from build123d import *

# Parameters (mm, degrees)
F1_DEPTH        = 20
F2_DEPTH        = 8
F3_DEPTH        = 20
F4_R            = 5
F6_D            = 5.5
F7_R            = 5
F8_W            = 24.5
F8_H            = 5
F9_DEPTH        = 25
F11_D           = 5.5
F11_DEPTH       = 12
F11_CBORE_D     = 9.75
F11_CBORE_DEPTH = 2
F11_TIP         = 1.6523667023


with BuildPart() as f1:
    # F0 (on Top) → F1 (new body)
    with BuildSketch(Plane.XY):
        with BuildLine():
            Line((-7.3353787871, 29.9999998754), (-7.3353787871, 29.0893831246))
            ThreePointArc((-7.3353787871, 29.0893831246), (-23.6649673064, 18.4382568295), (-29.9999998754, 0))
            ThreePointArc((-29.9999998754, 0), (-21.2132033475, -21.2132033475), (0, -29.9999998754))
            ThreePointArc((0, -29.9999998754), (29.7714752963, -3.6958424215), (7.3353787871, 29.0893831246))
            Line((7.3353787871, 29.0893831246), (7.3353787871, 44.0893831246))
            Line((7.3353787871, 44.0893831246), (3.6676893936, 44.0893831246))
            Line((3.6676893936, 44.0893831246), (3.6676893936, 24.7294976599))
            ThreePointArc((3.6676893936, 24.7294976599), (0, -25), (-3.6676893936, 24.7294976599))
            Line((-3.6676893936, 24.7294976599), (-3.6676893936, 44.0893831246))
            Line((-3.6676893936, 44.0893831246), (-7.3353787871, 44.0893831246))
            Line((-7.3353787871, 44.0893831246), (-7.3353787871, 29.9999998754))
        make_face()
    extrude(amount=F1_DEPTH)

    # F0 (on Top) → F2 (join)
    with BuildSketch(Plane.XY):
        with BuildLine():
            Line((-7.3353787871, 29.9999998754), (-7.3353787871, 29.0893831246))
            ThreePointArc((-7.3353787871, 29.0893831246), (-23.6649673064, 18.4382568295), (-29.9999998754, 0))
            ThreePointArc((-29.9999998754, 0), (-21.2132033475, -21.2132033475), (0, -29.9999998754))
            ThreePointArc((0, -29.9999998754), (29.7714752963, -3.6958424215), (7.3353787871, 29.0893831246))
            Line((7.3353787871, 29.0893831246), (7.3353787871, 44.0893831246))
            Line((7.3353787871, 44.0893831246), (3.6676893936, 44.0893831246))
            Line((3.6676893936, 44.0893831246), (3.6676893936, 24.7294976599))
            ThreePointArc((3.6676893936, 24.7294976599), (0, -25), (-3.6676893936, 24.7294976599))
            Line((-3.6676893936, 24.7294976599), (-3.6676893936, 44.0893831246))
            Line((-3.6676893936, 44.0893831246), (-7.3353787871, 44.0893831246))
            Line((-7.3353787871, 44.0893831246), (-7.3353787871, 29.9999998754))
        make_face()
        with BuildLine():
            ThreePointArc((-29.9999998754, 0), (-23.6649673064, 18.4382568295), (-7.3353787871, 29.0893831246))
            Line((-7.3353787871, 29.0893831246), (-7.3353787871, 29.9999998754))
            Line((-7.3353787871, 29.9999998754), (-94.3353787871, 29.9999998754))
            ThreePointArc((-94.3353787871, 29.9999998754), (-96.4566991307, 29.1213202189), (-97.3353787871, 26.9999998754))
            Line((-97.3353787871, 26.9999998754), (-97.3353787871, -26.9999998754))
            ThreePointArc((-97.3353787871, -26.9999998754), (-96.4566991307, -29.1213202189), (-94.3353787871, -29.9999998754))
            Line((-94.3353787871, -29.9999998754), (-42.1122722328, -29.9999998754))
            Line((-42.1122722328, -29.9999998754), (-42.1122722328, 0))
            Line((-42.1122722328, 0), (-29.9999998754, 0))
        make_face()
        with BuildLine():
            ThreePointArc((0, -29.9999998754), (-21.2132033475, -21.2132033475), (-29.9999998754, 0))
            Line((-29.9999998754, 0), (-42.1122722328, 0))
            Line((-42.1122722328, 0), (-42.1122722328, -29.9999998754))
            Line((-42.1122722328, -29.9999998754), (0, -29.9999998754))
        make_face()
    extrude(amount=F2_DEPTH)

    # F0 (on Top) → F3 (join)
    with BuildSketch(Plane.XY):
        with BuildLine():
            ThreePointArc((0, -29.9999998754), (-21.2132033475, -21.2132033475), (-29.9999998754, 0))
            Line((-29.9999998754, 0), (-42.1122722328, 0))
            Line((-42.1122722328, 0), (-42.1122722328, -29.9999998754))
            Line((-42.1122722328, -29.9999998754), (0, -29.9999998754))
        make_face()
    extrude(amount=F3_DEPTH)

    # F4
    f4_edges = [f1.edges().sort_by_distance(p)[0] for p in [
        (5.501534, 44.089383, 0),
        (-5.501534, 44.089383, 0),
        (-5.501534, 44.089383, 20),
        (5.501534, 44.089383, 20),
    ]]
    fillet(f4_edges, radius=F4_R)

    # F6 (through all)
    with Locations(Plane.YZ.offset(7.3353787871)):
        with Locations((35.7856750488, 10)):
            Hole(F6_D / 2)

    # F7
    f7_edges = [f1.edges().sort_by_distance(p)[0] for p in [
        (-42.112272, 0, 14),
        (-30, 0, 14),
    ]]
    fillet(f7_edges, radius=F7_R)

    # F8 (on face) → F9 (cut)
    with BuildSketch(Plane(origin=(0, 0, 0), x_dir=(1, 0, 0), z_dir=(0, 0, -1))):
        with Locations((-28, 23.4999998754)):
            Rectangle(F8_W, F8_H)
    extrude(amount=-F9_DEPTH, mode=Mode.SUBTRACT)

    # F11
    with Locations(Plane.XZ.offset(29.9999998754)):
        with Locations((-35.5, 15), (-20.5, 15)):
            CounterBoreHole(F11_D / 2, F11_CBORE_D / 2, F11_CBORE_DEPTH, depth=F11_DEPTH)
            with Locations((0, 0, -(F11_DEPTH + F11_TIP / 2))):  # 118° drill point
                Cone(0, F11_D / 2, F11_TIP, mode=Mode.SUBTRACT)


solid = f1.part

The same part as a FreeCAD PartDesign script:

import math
import FreeCAD as App
import Part
import Sketcher


def edges_at(feature, points):
    """Names of the edges that pass closest to the given points."""
    edges = feature.Shape.Edges
    near = lambda p: min(range(len(edges)), key=lambda i: edges[i].distToShape(Part.Vertex(*p))[0])
    return sorted({f"Edge{near(p) + 1}" for p in points})

doc = App.newDocument("Part")
params = doc.addObject("Spreadsheet::Sheet", "Params")
for row, (alias, value) in enumerate([
    ("sketch1_radius", "30 mm"),
    ("sketch1_radius2", "25 mm"),
    ("sketch1_height", "15 mm"),
    ("pad1_length", "20 mm"),
    ("sketch2_radius", "30 mm"),
    ("sketch2_radius2", "25 mm"),
    ("sketch2_radius3", "3 mm"),
    ("sketch2_width", "87 mm"),
    ("sketch2_height", "15 mm"),
    ("pad2_length", "8 mm"),
    ("sketch3_radius", "30 mm"),
    ("pad3_length", "20 mm"),
    ("fillet_radius", "5 mm"),
    ("sketch4_diameter", "5.5 mm"),
    ("hole_diameter", "5.5 mm"),
    ("fillet2_radius", "5 mm"),
    ("sketch5_height", "5 mm"),
    ("sketch5_width", "24.5 mm"),
    ("pocket1_length", "25 mm"),
    ("sketch6_diameter", "5.5 mm"),
    ("hole2_diameter", "5.5 mm"),
    ("hole2_depth", "12 mm"),
    ("hole2_cbore_diameter", "9.75 mm"),
    ("hole2_cbore_depth", "2 mm"),
], start=1):
    params.set(f"A{row}", alias)
    params.set(f"B{row}", "=" + value)
    params.setAlias(f"B{row}", alias)

body = doc.addObject("PartDesign::Body", "Body")

# Sketch on XY plane
sketch1 = body.newObject("Sketcher::SketchObject", "Sketch")
sketch1.AttachmentSupport = (doc.getObject("XY_Plane"), [""])
sketch1.MapMode = "FlatFace"
sketch1.addGeometry([
    Part.ArcOfCircle(Part.Circle(App.Vector(0, 0, 0), App.Vector(0, 0, 1), 30), math.radians(104.153033), math.radians(180)),  # 0
    Part.ArcOfCircle(Part.Circle(App.Vector(0, 0, 0), App.Vector(0, 0, 1), 30), math.radians(180), math.radians(270)),  # 1
    Part.ArcOfCircle(Part.Circle(App.Vector(0, 0, 0), App.Vector(0, 0, 1), 30), math.radians(-90), math.radians(75.846967)),  # 2
    Part.LineSegment(App.Vector(7.335379, 29.089383, 0), App.Vector(7.335379, 44.089383, 0)),  # 3
    Part.LineSegment(App.Vector(7.335379, 44.089383, 0), App.Vector(3.667689, 44.089383, 0)),  # 4
    Part.LineSegment(App.Vector(3.667689, 44.089383, 0), App.Vector(3.667689, 24.729498, 0)),  # 5
    Part.ArcOfCircle(Part.Circle(App.Vector(0, 0, 0), App.Vector(0, 0, 1), 25), math.radians(98.436174), math.radians(441.563826)),  # 6
    Part.LineSegment(App.Vector(-3.667689, 24.729498, 0), App.Vector(-3.667689, 44.089383, 0)),  # 7
    Part.LineSegment(App.Vector(-3.667689, 44.089383, 0), App.Vector(-7.335379, 44.089383, 0)),  # 8
    Part.LineSegment(App.Vector(-7.335379, 44.089383, 0), App.Vector(-7.335379, 29.089383, 0)),  # 9
], False)
sketch1.addConstraint([
    Sketcher.Constraint("Tangent", 0, 2, 1, 1),
    Sketcher.Constraint("Tangent", 1, 2, 2, 1),
    Sketcher.Constraint("Coincident", 2, 2, 3, 1),
    Sketcher.Constraint("Coincident", 3, 2, 4, 1),
    Sketcher.Constraint("Coincident", 4, 2, 5, 1),
    Sketcher.Constraint("Coincident", 5, 2, 6, 2),
    Sketcher.Constraint("Coincident", 6, 1, 7, 1),
    Sketcher.Constraint("Coincident", 7, 2, 8, 1),
    Sketcher.Constraint("Coincident", 8, 2, 9, 1),
    Sketcher.Constraint("Coincident", 9, 2, 0, 1),
    Sketcher.Constraint("Vertical", 3),
    Sketcher.Constraint("Horizontal", 4),
    Sketcher.Constraint("Vertical", 5),
    Sketcher.Constraint("Vertical", 7),
    Sketcher.Constraint("Horizontal", 8),
    Sketcher.Constraint("Vertical", 9),
    Sketcher.Constraint("Coincident", 0, 3, -1, 1),
    Sketcher.Constraint("Coincident", 2, 3, -1, 1),
    Sketcher.Constraint("Coincident", 6, 3, -1, 1),
    Sketcher.Constraint("Symmetric", 4, 2, 7, 2, -2),
    Sketcher.Constraint("PointOnObject", 0, 2, -1),
    Sketcher.Constraint("PointOnObject", 1, 2, -2),
    Sketcher.Constraint("Horizontal", 2, 2, 9, 2),
    Sketcher.Constraint("Radius", 0, 30.0),
    Sketcher.Constraint("Radius", 6, 25.0),
    Sketcher.Constraint("DistanceY", 3, 1, 3, 2, 15.0),
    Sketcher.Constraint("DistanceX", 4, 2, 4, 1, 3.667689),
    Sketcher.Constraint("DistanceY", 5, 2, 5, 1, 19.359885),
])
sketch1.setExpression("Constraints[23]", "Params.sketch1_radius")
sketch1.setExpression("Constraints[24]", "Params.sketch1_radius2")
sketch1.setExpression("Constraints[25]", "Params.sketch1_height")
pad1 = body.newObject("PartDesign::Pad", "Pad")
pad1.Profile = sketch1
pad1.setExpression("Length", "Params.pad1_length")

# Sketch on XY plane
sketch2 = body.newObject("Sketcher::SketchObject", "Sketch001")
sketch2.AttachmentSupport = (doc.getObject("XY_Plane"), [""])
sketch2.MapMode = "FlatFace"
sketch2.addGeometry([
    Part.ArcOfCircle(Part.Circle(App.Vector(0, 0, 0), App.Vector(0, 0, 1), 30), math.radians(-90), math.radians(75.846967)),  # 0
    Part.LineSegment(App.Vector(7.335379, 29.089383, 0), App.Vector(7.335379, 44.089383, 0)),  # 1
    Part.LineSegment(App.Vector(7.335379, 44.089383, 0), App.Vector(3.667689, 44.089383, 0)),  # 2
    Part.LineSegment(App.Vector(3.667689, 44.089383, 0), App.Vector(3.667689, 24.729498, 0)),  # 3
    Part.ArcOfCircle(Part.Circle(App.Vector(0, 0, 0), App.Vector(0, 0, 1), 25), math.radians(98.436174), math.radians(441.563826)),  # 4
    Part.LineSegment(App.Vector(-3.667689, 24.729498, 0), App.Vector(-3.667689, 44.089383, 0)),  # 5
    Part.LineSegment(App.Vector(-3.667689, 44.089383, 0), App.Vector(-7.335379, 44.089383, 0)),  # 6
    Part.LineSegment(App.Vector(-7.335379, 44.089383, 0), App.Vector(-7.335379, 30, 0)),  # 7
    Part.LineSegment(App.Vector(-7.335379, 30, 0), App.Vector(-94.335379, 30, 0)),  # 8
    Part.ArcOfCircle(Part.Circle(App.Vector(-94.335379, 27, 0), App.Vector(0, 0, 1), 3), math.radians(90), math.radians(180)),  # 9
    Part.LineSegment(App.Vector(-97.335379, 27, 0), App.Vector(-97.335379, -27, 0)),  # 10
    Part.ArcOfCircle(Part.Circle(App.Vector(-94.335379, -27, 0), App.Vector(0, 0, 1), 3), math.radians(180), math.radians(270)),  # 11
    Part.LineSegment(App.Vector(-94.335379, -30, 0), App.Vector(0, -30, 0)),  # 12
], False)
sketch2.addConstraint([
    Sketcher.Constraint("Coincident", 0, 2, 1, 1),
    Sketcher.Constraint("Coincident", 1, 2, 2, 1),
    Sketcher.Constraint("Coincident", 2, 2, 3, 1),
    Sketcher.Constraint("Coincident", 3, 2, 4, 2),
    Sketcher.Constraint("Coincident", 4, 1, 5, 1),
    Sketcher.Constraint("Coincident", 5, 2, 6, 1),
    Sketcher.Constraint("Coincident", 6, 2, 7, 1),
    Sketcher.Constraint("Coincident", 7, 2, 8, 1),
    Sketcher.Constraint("Tangent", 8, 2, 9, 1),
    Sketcher.Constraint("Tangent", 9, 2, 10, 1),
    Sketcher.Constraint("Tangent", 10, 2, 11, 1),
    Sketcher.Constraint("Tangent", 11, 2, 12, 1),
    Sketcher.Constraint("Tangent", 12, 2, 0, 1),
    Sketcher.Constraint("Vertical", 1),
    Sketcher.Constraint("Horizontal", 2),
    Sketcher.Constraint("Vertical", 3),
    Sketcher.Constraint("Vertical", 5),
    Sketcher.Constraint("Horizontal", 6),
    Sketcher.Constraint("Vertical", 7),
    Sketcher.Constraint("Horizontal", 8),
    Sketcher.Constraint("Vertical", 10),
    Sketcher.Constraint("Horizontal", 12),
    Sketcher.Constraint("Coincident", 0, 3, -1, 1),
    Sketcher.Constraint("Coincident", 4, 3, -1, 1),
    Sketcher.Constraint("Equal", 9, 11),
    Sketcher.Constraint("Symmetric", 2, 2, 5, 2, -2),
    Sketcher.Constraint("Equal", 2, 6),
    Sketcher.Constraint("Radius", 0, 30.0),
    Sketcher.Constraint("Radius", 4, 25.0),
    Sketcher.Constraint("Radius", 9, 3.0),
    Sketcher.Constraint("DistanceX", 8, 2, 8, 1, 87.0),
    Sketcher.Constraint("DistanceY", 1, 1, 1, 2, 15.0),
    Sketcher.Constraint("DistanceY", 10, 2, 10, 1, 54.0),
    Sketcher.Constraint("DistanceX", 2, 2, 2, 1, 3.667689),
    Sketcher.Constraint("DistanceX", 12, 1, 12, 2, 94.335379),
])
sketch2.setExpression("Constraints[27]", "Params.sketch2_radius")
sketch2.setExpression("Constraints[28]", "Params.sketch2_radius2")
sketch2.setExpression("Constraints[29]", "Params.sketch2_radius3")
sketch2.setExpression("Constraints[30]", "Params.sketch2_width")
sketch2.setExpression("Constraints[31]", "Params.sketch2_height")
pad2 = body.newObject("PartDesign::Pad", "Pad001")
pad2.Profile = sketch2
pad2.setExpression("Length", "Params.pad2_length")

# Sketch on XY plane
sketch3 = body.newObject("Sketcher::SketchObject", "Sketch002")
sketch3.AttachmentSupport = (doc.getObject("XY_Plane"), [""])
sketch3.MapMode = "FlatFace"
sketch3.addGeometry([
    Part.ArcOfCircle(Part.Circle(App.Vector(0, 0, 0), App.Vector(0, 0, 1), 30), math.radians(180), math.radians(270)),
    Part.LineSegment(App.Vector(-30, 0, 0), App.Vector(-42.112272, 0, 0)),
    Part.LineSegment(App.Vector(-42.112272, 0, 0), App.Vector(-42.112272, -30, 0)),
    Part.LineSegment(App.Vector(-42.112272, -30, 0), App.Vector(0, -30, 0)),
], False)
sketch3.addConstraint([
    Sketcher.Constraint("Coincident", 0, 1, 1, 1),
    Sketcher.Constraint("Coincident", 1, 2, 2, 1),
    Sketcher.Constraint("Coincident", 2, 2, 3, 1),
    Sketcher.Constraint("Tangent", 3, 2, 0, 2),
    Sketcher.Constraint("Horizontal", 1),
    Sketcher.Constraint("Vertical", 2),
    Sketcher.Constraint("Horizontal", 3),
    Sketcher.Constraint("Coincident", 0, 3, -1, 1),
    Sketcher.Constraint("PointOnObject", 0, 1, -1),
    Sketcher.Constraint("Radius", 0, 30.0),
    Sketcher.Constraint("DistanceX", 1, 2, 1, 1, 12.112272),
])
sketch3.setExpression("Constraints[9]", "Params.sketch3_radius")
pad3 = body.newObject("PartDesign::Pad", "Pad002")
pad3.Profile = sketch3
pad3.setExpression("Length", "Params.pad3_length")
doc.recompute()

fillet = body.newObject("PartDesign::Fillet", "Fillet")
fillet.Base = (pad3, edges_at(pad3, [
    (5.502, 44.089, 0),
    (-5.502, 44.089, 0),
    (-5.502, 44.089, 20),
    (5.502, 44.089, 20),
]))
fillet.setExpression("Radius", "Params.fillet_radius")

# Sketch on YZ plane
sketch4 = body.newObject("Sketcher::SketchObject", "Sketch003")
sketch4.AttachmentSupport = (doc.getObject("YZ_Plane"), [""])
sketch4.MapMode = "FlatFace"
sketch4.AttachmentOffset = App.Placement(App.Vector(0, 0, 7.335379), App.Rotation())
sketch4.addGeometry(Part.Circle(App.Vector(35.785675, 10, 0), App.Vector(0, 0, 1), 2.75), False)
sketch4.addConstraint([
    Sketcher.Constraint("Diameter", 0, 5.5),
    Sketcher.Constraint("DistanceY", -1, 1, 0, 3, 10.0),
    Sketcher.Constraint("DistanceX", -1, 1, 0, 3, 35.785675),
])
sketch4.setExpression("Constraints[0]", "Params.sketch4_diameter")
doc.recompute()
hole = body.newObject("PartDesign::Hole", "Hole")
hole.Profile = sketch4
hole.ThreadType = "None"
hole.setExpression("Diameter", "Params.hole_diameter")
hole.DepthType = "ThroughAll"
doc.recompute()

fillet2 = body.newObject("PartDesign::Fillet", "Fillet001")
fillet2.Base = (hole, edges_at(hole, [(-42.112, 0, 14), (-30, 0, 14)]))
fillet2.setExpression("Radius", "Params.fillet2_radius")

# Sketch on XY plane
sketch5 = body.newObject("Sketcher::SketchObject", "Sketch004")
sketch5.AttachmentSupport = (doc.getObject("XY_Plane"), [""])
sketch5.MapMode = "FlatFace"
sketch5.addGeometry([
    Part.LineSegment(App.Vector(-40.25, -26, 0), App.Vector(-40.25, -21, 0)),
    Part.LineSegment(App.Vector(-40.25, -21, 0), App.Vector(-15.75, -21, 0)),
    Part.LineSegment(App.Vector(-15.75, -21, 0), App.Vector(-15.75, -26, 0)),
    Part.LineSegment(App.Vector(-15.75, -26, 0), App.Vector(-40.25, -26, 0)),
], False)
sketch5.addConstraint([
    Sketcher.Constraint("Coincident", 0, 2, 1, 1),
    Sketcher.Constraint("Coincident", 1, 2, 2, 1),
    Sketcher.Constraint("Coincident", 2, 2, 3, 1),
    Sketcher.Constraint("Coincident", 3, 2, 0, 1),
    Sketcher.Constraint("Vertical", 0),
    Sketcher.Constraint("Horizontal", 1),
    Sketcher.Constraint("Vertical", 2),
    Sketcher.Constraint("Horizontal", 3),
    Sketcher.Constraint("DistanceY", 0, 1, 0, 2, 5.0),
    Sketcher.Constraint("DistanceX", 1, 1, 1, 2, 24.5),
    Sketcher.Constraint("DistanceY", 0, 2, -1, 1, 21.0),
    Sketcher.Constraint("DistanceX", 0, 2, -1, 1, 40.25),
])
sketch5.setExpression("Constraints[8]", "Params.sketch5_height")
sketch5.setExpression("Constraints[9]", "Params.sketch5_width")
pocket1 = body.newObject("PartDesign::Pocket", "Pocket")
pocket1.Profile = sketch5
pocket1.setExpression("Length", "Params.pocket1_length")
pocket1.Reversed = True

# Sketch on XZ plane
sketch6 = body.newObject("Sketcher::SketchObject", "Sketch005")
sketch6.AttachmentSupport = (doc.getObject("XZ_Plane"), [""])
sketch6.MapMode = "FlatFace"
sketch6.AttachmentOffset = App.Placement(App.Vector(0, 0, 30), App.Rotation())
sketch6.addGeometry([
    Part.Circle(App.Vector(-35.5, 15, 0), App.Vector(0, 0, 1), 2.75),
    Part.Circle(App.Vector(-20.5, 15, 0), App.Vector(0, 0, 1), 2.75),
], False)
sketch6.addConstraint([
    Sketcher.Constraint("Equal", 0, 1),
    Sketcher.Constraint("Horizontal", 0, 3, 1, 3),
    Sketcher.Constraint("Diameter", 0, 5.5),
    Sketcher.Constraint("DistanceY", -1, 1, 0, 3, 15.0),
    Sketcher.Constraint("DistanceX", 0, 3, 1, 3, 15.0),
    Sketcher.Constraint("DistanceX", 0, 3, -1, 1, 35.5),
])
sketch6.setExpression("Constraints[2]", "Params.sketch6_diameter")
doc.recompute()
hole2 = body.newObject("PartDesign::Hole", "Hole001")
hole2.Profile = sketch6
hole2.ThreadType = "None"
hole2.setExpression("Diameter", "Params.hole2_diameter")
hole2.DepthType = "Dimension"
hole2.setExpression("Depth", "Params.hole2_depth")
hole2.DrillPoint = "Angled"
hole2.DrillPointAngle = 118
hole2.HoleCutType = "Counterbore"
hole2.setExpression("HoleCutDiameter", "Params.hole2_cbore_diameter")
hole2.setExpression("HoleCutDepth", "Params.hole2_cbore_depth")

doc.recompute()
